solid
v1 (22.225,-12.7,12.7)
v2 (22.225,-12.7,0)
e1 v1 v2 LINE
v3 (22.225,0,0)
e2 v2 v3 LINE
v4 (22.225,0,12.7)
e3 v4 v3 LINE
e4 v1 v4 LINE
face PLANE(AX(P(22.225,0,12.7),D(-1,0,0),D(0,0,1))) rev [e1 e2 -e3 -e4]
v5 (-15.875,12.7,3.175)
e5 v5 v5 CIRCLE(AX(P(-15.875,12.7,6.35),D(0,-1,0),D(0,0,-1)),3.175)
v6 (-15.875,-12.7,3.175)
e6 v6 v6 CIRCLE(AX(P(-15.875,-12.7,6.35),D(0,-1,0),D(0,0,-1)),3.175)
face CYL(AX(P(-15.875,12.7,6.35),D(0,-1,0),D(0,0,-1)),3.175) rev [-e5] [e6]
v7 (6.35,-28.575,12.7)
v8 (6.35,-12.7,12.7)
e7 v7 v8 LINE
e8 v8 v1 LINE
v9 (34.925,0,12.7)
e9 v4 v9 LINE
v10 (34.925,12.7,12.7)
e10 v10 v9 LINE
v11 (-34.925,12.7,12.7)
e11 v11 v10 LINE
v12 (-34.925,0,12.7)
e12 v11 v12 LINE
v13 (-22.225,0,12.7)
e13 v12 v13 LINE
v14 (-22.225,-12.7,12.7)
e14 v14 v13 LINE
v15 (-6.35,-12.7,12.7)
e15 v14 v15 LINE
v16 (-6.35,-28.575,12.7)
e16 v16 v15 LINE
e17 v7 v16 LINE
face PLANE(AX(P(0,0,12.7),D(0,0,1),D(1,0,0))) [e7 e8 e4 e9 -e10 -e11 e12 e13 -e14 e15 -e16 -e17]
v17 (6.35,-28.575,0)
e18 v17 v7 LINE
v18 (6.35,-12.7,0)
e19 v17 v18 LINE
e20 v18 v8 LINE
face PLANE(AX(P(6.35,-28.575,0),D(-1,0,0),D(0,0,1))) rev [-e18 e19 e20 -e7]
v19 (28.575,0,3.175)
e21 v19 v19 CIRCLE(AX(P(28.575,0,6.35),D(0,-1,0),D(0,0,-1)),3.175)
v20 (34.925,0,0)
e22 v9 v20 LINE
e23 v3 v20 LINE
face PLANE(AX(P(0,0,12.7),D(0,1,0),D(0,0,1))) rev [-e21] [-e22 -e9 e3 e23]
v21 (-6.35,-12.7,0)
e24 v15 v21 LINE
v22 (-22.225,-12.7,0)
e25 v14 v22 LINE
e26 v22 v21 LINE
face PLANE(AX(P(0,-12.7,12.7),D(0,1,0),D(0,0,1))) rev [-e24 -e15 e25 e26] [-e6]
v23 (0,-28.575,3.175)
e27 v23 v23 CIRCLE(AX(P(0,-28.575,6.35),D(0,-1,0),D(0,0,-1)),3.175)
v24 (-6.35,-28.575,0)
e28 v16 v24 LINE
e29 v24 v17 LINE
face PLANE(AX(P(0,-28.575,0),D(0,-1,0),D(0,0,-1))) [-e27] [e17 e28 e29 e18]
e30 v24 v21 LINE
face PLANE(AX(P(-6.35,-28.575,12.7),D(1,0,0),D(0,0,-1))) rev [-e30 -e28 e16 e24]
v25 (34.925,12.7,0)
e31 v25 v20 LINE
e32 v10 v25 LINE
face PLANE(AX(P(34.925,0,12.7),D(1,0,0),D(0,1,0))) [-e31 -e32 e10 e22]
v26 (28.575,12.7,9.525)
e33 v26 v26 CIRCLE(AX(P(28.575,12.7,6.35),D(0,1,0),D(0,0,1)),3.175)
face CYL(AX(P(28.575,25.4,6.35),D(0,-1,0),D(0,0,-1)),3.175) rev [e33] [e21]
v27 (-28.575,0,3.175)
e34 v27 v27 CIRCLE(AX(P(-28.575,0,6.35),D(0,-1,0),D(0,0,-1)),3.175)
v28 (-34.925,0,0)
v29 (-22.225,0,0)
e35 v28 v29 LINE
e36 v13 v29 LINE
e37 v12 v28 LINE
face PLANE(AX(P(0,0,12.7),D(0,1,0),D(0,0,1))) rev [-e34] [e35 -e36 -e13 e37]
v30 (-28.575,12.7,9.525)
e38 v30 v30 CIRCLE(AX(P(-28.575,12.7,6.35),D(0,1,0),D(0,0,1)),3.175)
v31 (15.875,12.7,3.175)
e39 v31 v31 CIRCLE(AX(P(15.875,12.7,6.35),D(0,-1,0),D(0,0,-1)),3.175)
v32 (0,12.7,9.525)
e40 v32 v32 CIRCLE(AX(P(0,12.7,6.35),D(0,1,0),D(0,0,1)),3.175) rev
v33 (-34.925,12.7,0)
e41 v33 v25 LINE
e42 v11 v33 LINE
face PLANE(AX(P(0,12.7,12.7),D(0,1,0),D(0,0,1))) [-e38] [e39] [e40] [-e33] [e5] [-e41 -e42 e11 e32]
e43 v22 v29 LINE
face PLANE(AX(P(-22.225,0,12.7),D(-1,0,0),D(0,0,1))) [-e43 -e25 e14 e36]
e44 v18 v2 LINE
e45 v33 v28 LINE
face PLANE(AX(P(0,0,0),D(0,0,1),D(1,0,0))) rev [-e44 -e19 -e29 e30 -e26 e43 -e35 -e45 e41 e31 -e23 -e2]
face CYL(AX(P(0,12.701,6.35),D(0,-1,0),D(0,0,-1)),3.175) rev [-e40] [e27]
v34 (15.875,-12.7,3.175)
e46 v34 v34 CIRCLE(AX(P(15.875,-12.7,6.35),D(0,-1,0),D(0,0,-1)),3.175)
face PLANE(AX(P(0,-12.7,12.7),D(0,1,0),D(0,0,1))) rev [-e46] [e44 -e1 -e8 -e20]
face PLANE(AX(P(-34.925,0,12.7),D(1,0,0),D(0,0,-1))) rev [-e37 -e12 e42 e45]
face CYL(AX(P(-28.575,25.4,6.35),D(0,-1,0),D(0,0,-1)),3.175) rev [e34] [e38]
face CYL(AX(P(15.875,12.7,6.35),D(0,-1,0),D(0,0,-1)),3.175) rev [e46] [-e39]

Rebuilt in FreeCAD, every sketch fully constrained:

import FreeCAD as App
import Part
import Sketcher
from FreeCAD import Vector
Q = App.Units.Quantity

doc = App.newDocument("Part")
body = doc.addObject("PartDesign::Body", "Body")

# Sketch on XY plane
sketch1 = body.newObject("Sketcher::SketchObject", "Sketch")
sketch1.AttachmentSupport = (doc.getObject("XY_Plane"), [""])
sketch1.MapMode = "FlatFace"
sketch1.addGeometry(Part.LineSegment(Vector(-22, -13, 0), Vector(22, -13, 0)), False)
sketch1.addGeometry(Part.LineSegment(Vector(22, -13, 0), Vector(22, 0, 0)), False)
sketch1.addGeometry(Part.LineSegment(Vector(22, 0, 0), Vector(35, 0, 0)), False)
sketch1.addGeometry(Part.LineSegment(Vector(35, 0, 0), Vector(35, 13, 0)), False)
sketch1.addGeometry(Part.LineSegment(Vector(35, 13, 0), Vector(-35, 13, 0)), False)
sketch1.addGeometry(Part.LineSegment(Vector(-35, 13, 0), Vector(-35, 0, 0)), False)
sketch1.addGeometry(Part.LineSegment(Vector(-35, 0, 0), Vector(-22, 0, 0)), False)
sketch1.addGeometry(Part.LineSegment(Vector(-22, 0, 0), Vector(-22, -13, 0)), False)
sketch1.addConstraint(Sketcher.Constraint("Coincident", 0, 2, 1, 1))
sketch1.addConstraint(Sketcher.Constraint("Coincident", 1, 2, 2, 1))
sketch1.addConstraint(Sketcher.Constraint("Coincident", 2, 2, 3, 1))
sketch1.addConstraint(Sketcher.Constraint("Coincident", 3, 2, 4, 1))
sketch1.addConstraint(Sketcher.Constraint("Coincident", 4, 2, 5, 1))
sketch1.addConstraint(Sketcher.Constraint("Coincident", 5, 2, 6, 1))
sketch1.addConstraint(Sketcher.Constraint("Coincident", 6, 2, 7, 1))
sketch1.addConstraint(Sketcher.Constraint("Coincident", 7, 2, 0, 1))
sketch1.addConstraint(Sketcher.Constraint("Horizontal", 0))
sketch1.addConstraint(Sketcher.Constraint("Vertical", 1))
sketch1.addConstraint(Sketcher.Constraint("Horizontal", 2))
sketch1.addConstraint(Sketcher.Constraint("Vertical", 3))
sketch1.addConstraint(Sketcher.Constraint("Horizontal", 4))
sketch1.addConstraint(Sketcher.Constraint("Vertical", 5))
sketch1.addConstraint(Sketcher.Constraint("Horizontal", 6))
sketch1.addConstraint(Sketcher.Constraint("Vertical", 7))
sketch1.addConstraint(Sketcher.Constraint("Symmetric", 2, 2, 5, 2, -1, 1))
sketch1.addConstraint(Sketcher.Constraint("Symmetric", 1, 2, 6, 2, -2))
sketch1.addConstraint(Sketcher.Constraint("Equal", 6, 1))
sketch1.addConstraint(Sketcher.Constraint("Equal", 1, 3))
sketch1.addConstraint(Sketcher.Constraint("DistanceX", 2, 1, 2, 2, Q("0.5 in")))
sketch1.addConstraint(Sketcher.Constraint("DistanceX", 0, 1, 0, 2, Q("1.75 in")))
pad1 = body.newObject("PartDesign::Pad", "Pad")
pad1.Profile = sketch1
pad1.Length = Q("0.5 in")

# Sketch on XZ plane
sketch2 = body.newObject("Sketcher::SketchObject", "Sketch001")
sketch2.AttachmentSupport = (doc.getObject("XZ_Plane"), [""])
sketch2.MapMode = "FlatFace"
sketch2.AttachmentOffset = App.Placement(Vector(0, 0, 0.5 * 25.4), App.Rotation())
sketch2.addGeometry(Part.Circle(Vector(-15.9, 6.3, 0), Vector(0, 0, 1), 3.2), False)
sketch2.addGeometry(Part.Circle(Vector(15.9, 6.3, 0), Vector(0, 0, 1), 3.2), False)
sketch2.addConstraint(Sketcher.Constraint("Equal", 0, 1))
sketch2.addConstraint(Sketcher.Constraint("Symmetric", 0, 3, 1, 3, -2))
sketch2.addConstraint(Sketcher.Constraint("Diameter", 0, Q("0.25 in")))
sketch2.addConstraint(Sketcher.Constraint("DistanceY", -1, 1, 0, 3, Q("0.25 in")))
sketch2.addConstraint(Sketcher.Constraint("DistanceX", 0, 3, 1, 3, Q("1.25 in")))
pocket1 = body.newObject("PartDesign::Pocket", "Pocket")
pocket1.Profile = sketch2
pocket1.Length = Q("1 in")

# Sketch on XZ plane
sketch3 = body.newObject("Sketcher::SketchObject", "Sketch002")
sketch3.AttachmentSupport = (doc.getObject("XZ_Plane"), [""])
sketch3.MapMode = "FlatFace"
sketch3.addGeometry(Part.Circle(Vector(-28.6, 6.3, 0), Vector(0, 0, 1), 3.2), False)
sketch3.addGeometry(Part.Circle(Vector(28.6, 6.3, 0), Vector(0, 0, 1), 3.2), False)
sketch3.addConstraint(Sketcher.Constraint("Equal", 0, 1))
sketch3.addConstraint(Sketcher.Constraint("Symmetric", 0, 3, 1, 3, -2))
sketch3.addConstraint(Sketcher.Constraint("Diameter", 0, Q("0.25 in")))
sketch3.addConstraint(Sketcher.Constraint("DistanceY", -1, 1, 0, 3, Q("0.25 in")))
sketch3.addConstraint(Sketcher.Constraint("DistanceX", 0, 3, 1, 3, Q("2.25 in")))
pocket2 = body.newObject("PartDesign::Pocket", "Pocket001")
pocket2.Profile = sketch3
pocket2.Length = Q("1 in")

# Sketch on XZ plane
sketch4 = body.newObject("Sketcher::SketchObject", "Sketch003")
sketch4.AttachmentSupport = (doc.getObject("XZ_Plane"), [""])
sketch4.MapMode = "FlatFace"
sketch4.AttachmentOffset = App.Placement(Vector(0, 0, 0.5 * 25.4), App.Rotation())
sketch4.addGeometry(Part.LineSegment(Vector(-6, 13, 0), Vector(-6, 0, 0)), False)
sketch4.addGeometry(Part.LineSegment(Vector(-6, 0, 0), Vector(6, 0, 0)), False)
sketch4.addGeometry(Part.LineSegment(Vector(6, 0, 0), Vector(6, 13, 0)), False)
sketch4.addGeometry(Part.LineSegment(Vector(6, 13, 0), Vector(-6, 13, 0)), False)
sketch4.addConstraint(Sketcher.Constraint("Coincident", 0, 2, 1, 1))
sketch4.addConstraint(Sketcher.Constraint("Coincident", 1, 2, 2, 1))
sketch4.addConstraint(Sketcher.Constraint("Coincident", 2, 2, 3, 1))
sketch4.addConstraint(Sketcher.Constraint("Coincident", 3, 2, 0, 1))
sketch4.addConstraint(Sketcher.Constraint("Vertical", 0))
sketch4.addConstraint(Sketcher.Constraint("Horizontal", 1))
sketch4.addConstraint(Sketcher.Constraint("Vertical", 2))
sketch4.addConstraint(Sketcher.Constraint("Horizontal", 3))
sketch4.addConstraint(Sketcher.Constraint("Symmetric", 0, 2, 1, 2, -1, 1))
sketch4.addConstraint(Sketcher.Constraint("Equal", 3, 0))
sketch4.addConstraint(Sketcher.Constraint("DistanceX", 1, 1, 1, 2, Q("0.5 in")))
pad2 = body.newObject("PartDesign::Pad", "Pad001")
pad2.Profile = sketch4
pad2.Length = Q("0.625 in")

# Sketch on XZ plane
sketch5 = body.newObject("Sketcher::SketchObject", "Sketch004")
sketch5.AttachmentSupport = (doc.getObject("XZ_Plane"), [""])
sketch5.MapMode = "FlatFace"
sketch5.AttachmentOffset = App.Placement(Vector(0, 0, 1.625 * 25.4), App.Rotation())
sketch5.addGeometry(Part.LineSegment(Vector(-22.2, 12.7, 0), Vector(-22.2, 0, 0)), False)
sketch5.addGeometry(Part.LineSegment(Vector(-22.2, 0, 0), Vector(22.2, 0, 0)), False)
sketch5.addGeometry(Part.LineSegment(Vector(22.2, 0, 0), Vector(22.2, 12.7, 0)), False)
sketch5.addGeometry(Part.LineSegment(Vector(22.2, 12.7, 0), Vector(-22.2, 12.7, 0)), False)
sketch5.addGeometry(Part.Circle(Vector(-15.9, 6.3, 0), Vector(0, 0, 1), 3.2), False)
sketch5.addGeometry(Part.Circle(Vector(15.9, 6.3, 0), Vector(0, 0, 1), 3.2), False)
sketch5.addConstraint(Sketcher.Constraint("Coincident", 0, 2, 1, 1))
sketch5.addConstraint(Sketcher.Constraint("Coincident", 1, 2, 2, 1))
sketch5.addConstraint(Sketcher.Constraint("Coincident", 2, 2, 3, 1))
sketch5.addConstraint(Sketcher.Constraint("Coincident", 3, 2, 0, 1))
sketch5.addConstraint(Sketcher.Constraint("Vertical", 0))
sketch5.addConstraint(Sketcher.Constraint("Horizontal", 1))
sketch5.addConstraint(Sketcher.Constraint("Vertical", 2))
sketch5.addConstraint(Sketcher.Constraint("Horizontal", 3))
sketch5.addConstraint(Sketcher.Constraint("Equal", 4, 5))
sketch5.addConstraint(Sketcher.Constraint("Symmetric", 0, 2, 1, 2, -1, 1))
sketch5.addConstraint(Sketcher.Constraint("Symmetric", 4, 3, 5, 3, -2))
sketch5.addConstraint(Sketcher.Constraint("Diameter", 4, Q("0.25 in")))
sketch5.addConstraint(Sketcher.Constraint("DistanceY", 0, 2, 0, 1, Q("0.5 in")))
sketch5.addConstraint(Sketcher.Constraint("DistanceX", 1, 1, 1, 2, Q("1.75 in")))
sketch5.addConstraint(Sketcher.Constraint("DistanceX", 0, 2, 5, 3, Q("1.5 in")))
sketch5.addConstraint(Sketcher.Constraint("DistanceY", -1, 1, 4, 3, Q("0.25 in")))
pad3 = body.newObject("PartDesign::Pad", "Pad002")
pad3.Profile = sketch5
pad3.Length = Q("0.5 in")
pad3.Reversed = True

# Sketch on XZ plane
sketch6 = body.newObject("Sketcher::SketchObject", "Sketch005")
sketch6.AttachmentSupport = (doc.getObject("XZ_Plane"), [""])
sketch6.MapMode = "FlatFace"
sketch6.AttachmentOffset = App.Placement(Vector(0, 0, 1.625 * 25.4), App.Rotation())
sketch6.addGeometry(Part.LineSegment(Vector(-22, 13, 0), Vector(-22, 0, 0)), False)
sketch6.addGeometry(Part.LineSegment(Vector(-22, 0, 0), Vector(22, 0, 0)), False)
sketch6.addGeometry(Part.LineSegment(Vector(22, 0, 0), Vector(22, 13, 0)), False)
sketch6.addGeometry(Part.LineSegment(Vector(22, 13, 0), Vector(-22, 13, 0)), False)
sketch6.addConstraint(Sketcher.Constraint("Coincident", 0, 2, 1, 1))
sketch6.addConstraint(Sketcher.Constraint("Coincident", 1, 2, 2, 1))
sketch6.addConstraint(Sketcher.Constraint("Coincident", 2, 2, 3, 1))
sketch6.addConstraint(Sketcher.Constraint("Coincident", 3, 2, 0, 1))
sketch6.addConstraint(Sketcher.Constraint("Vertical", 0))
sketch6.addConstraint(Sketcher.Constraint("Horizontal", 1))
sketch6.addConstraint(Sketcher.Constraint("Vertical", 2))
sketch6.addConstraint(Sketcher.Constraint("Horizontal", 3))
sketch6.addConstraint(Sketcher.Constraint("Symmetric", 0, 2, 1, 2, -1, 1))
sketch6.addConstraint(Sketcher.Constraint("DistanceY", 0, 2, 0, 1, Q("0.5 in")))
sketch6.addConstraint(Sketcher.Constraint("DistanceX", 1, 1, 1, 2, Q("1.75 in")))
pocket3 = body.newObject("PartDesign::Pocket", "Pocket002")
pocket3.Profile = sketch6
pocket3.Length = Q("0.5 in")

# Sketch on XZ plane
sketch7 = body.newObject("Sketcher::SketchObject", "Sketch006")
sketch7.AttachmentSupport = (doc.getObject("XZ_Plane"), [""])
sketch7.MapMode = "FlatFace"
sketch7.AttachmentOffset = App.Placement(Vector(0, 0, 1.125 * 25.4), App.Rotation())
sketch7.addGeometry(Part.Circle(Vector(0, 6.3, 0), Vector(0, 0, 1), 3.2), False)
sketch7.addConstraint(Sketcher.Constraint("PointOnObject", 0, 3, -2))
sketch7.addConstraint(Sketcher.Constraint("Diameter", 0, Q("0.25 in")))
sketch7.addConstraint(Sketcher.Constraint("DistanceY", -1, 1, 0, 3, Q("0.25 in")))
pocket4 = body.newObject("PartDesign::Pocket", "Pocket003")
pocket4.Profile = sketch7
pocket4.Type = "UpToFirst"

doc.recompute()
